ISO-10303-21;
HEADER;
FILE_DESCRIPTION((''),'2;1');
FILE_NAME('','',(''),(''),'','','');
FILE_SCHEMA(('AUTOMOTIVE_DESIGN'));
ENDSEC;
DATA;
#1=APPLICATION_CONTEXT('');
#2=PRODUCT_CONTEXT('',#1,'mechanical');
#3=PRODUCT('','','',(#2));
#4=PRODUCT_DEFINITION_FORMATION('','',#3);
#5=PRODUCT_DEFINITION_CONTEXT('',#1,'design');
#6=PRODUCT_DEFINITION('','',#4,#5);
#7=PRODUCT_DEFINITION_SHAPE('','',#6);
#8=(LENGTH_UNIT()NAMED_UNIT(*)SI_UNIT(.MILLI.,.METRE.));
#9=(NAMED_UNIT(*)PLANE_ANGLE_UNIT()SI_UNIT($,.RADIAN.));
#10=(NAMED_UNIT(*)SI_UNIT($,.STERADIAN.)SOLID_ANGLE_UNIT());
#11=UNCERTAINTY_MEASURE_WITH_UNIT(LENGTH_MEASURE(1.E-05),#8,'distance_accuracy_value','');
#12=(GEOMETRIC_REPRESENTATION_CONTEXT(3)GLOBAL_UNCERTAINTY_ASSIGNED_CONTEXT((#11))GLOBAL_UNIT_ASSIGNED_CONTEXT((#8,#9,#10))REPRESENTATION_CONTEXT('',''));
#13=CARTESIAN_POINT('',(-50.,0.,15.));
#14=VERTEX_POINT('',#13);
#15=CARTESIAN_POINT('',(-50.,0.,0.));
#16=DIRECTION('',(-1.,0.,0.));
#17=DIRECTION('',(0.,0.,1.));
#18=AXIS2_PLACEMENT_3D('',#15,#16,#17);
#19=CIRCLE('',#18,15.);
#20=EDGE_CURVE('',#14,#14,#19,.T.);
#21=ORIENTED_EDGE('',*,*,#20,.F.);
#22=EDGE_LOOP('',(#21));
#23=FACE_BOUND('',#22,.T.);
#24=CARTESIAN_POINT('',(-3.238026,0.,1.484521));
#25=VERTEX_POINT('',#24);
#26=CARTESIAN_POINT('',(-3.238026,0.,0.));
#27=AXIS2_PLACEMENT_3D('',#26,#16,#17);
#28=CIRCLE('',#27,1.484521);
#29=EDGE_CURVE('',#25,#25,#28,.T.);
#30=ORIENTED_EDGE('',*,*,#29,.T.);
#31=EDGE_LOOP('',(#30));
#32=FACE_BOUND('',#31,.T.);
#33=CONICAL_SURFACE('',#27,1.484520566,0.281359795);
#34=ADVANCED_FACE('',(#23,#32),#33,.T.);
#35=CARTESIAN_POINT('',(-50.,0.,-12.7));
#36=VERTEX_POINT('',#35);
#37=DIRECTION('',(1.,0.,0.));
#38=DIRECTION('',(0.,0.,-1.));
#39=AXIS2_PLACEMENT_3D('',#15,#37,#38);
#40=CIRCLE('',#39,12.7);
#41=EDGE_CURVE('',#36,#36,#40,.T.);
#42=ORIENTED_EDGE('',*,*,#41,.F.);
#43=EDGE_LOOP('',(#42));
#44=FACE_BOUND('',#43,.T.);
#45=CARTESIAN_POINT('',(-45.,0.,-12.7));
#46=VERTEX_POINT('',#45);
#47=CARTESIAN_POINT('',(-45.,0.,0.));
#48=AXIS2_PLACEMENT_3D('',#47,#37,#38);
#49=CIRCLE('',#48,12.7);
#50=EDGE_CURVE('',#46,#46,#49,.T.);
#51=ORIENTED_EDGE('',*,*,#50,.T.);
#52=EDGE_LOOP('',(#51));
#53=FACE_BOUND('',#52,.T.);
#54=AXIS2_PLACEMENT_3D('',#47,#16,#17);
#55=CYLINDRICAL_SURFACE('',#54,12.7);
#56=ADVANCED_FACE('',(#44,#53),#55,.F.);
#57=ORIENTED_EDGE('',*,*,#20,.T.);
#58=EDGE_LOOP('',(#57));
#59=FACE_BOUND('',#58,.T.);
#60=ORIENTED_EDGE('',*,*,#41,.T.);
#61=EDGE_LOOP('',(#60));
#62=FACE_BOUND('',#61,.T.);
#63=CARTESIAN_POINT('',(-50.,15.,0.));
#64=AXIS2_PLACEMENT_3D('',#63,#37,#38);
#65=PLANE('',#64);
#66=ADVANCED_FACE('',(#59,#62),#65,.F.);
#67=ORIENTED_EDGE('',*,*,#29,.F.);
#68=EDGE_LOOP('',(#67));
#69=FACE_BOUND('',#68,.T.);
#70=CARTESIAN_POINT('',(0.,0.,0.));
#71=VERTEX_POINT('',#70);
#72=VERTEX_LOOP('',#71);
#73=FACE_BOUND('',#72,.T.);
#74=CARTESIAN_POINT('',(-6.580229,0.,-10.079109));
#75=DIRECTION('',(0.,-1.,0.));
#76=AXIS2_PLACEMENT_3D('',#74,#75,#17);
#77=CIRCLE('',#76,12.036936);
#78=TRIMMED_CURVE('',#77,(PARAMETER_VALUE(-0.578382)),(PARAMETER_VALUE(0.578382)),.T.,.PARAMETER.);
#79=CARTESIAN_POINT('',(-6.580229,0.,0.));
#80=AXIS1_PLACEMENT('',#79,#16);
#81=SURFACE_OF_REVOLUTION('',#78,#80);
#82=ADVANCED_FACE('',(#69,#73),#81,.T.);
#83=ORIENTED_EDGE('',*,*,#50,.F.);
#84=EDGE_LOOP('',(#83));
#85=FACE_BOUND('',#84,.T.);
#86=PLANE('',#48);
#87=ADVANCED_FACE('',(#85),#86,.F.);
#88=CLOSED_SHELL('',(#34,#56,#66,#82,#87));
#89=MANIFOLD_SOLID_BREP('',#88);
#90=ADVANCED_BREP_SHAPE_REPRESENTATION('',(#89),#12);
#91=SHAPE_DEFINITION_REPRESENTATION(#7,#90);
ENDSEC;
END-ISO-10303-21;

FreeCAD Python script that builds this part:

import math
import FreeCAD as App
import Part
import Sketcher
from FreeCAD import Vector

doc = App.newDocument("Part")
body = doc.addObject("PartDesign::Body", "Body")

# Sketch on XY plane
sketch1 = body.newObject("Sketcher::SketchObject", "Sketch")
sketch1.AttachmentSupport = (doc.getObject("XY_Plane"), [""])
sketch1.MapMode = "FlatFace"
sketch1.addGeometry([
    Part.LineSegment(Vector(-3.238026, 1.484521, 0), Vector(-50, 15, 0)),
    Part.LineSegment(Vector(-50, 15, 0), Vector(-50, 0, 0)),
    Part.LineSegment(Vector(-50, 0, 0), Vector(0, 0, 0)),
    Part.ArcOfCircle(Part.Circle(Vector(-6.580229, -10.079109, 0), Vector(0, 0, 1), 12.036936), math.radians(56.86116), math.radians(73.879271)),
], False)
sketch1.addConstraint([
    Sketcher.Constraint("Coincident", 0, 2, 1, 1),
    Sketcher.Constraint("Coincident", 1, 2, 2, 1),
    Sketcher.Constraint("Coincident", 2, 2, 3, 1),
    Sketcher.Constraint("Tangent", 3, 2, 0, 1),
    Sketcher.Constraint("Vertical", 1),
    Sketcher.Constraint("Horizontal", 2),
    Sketcher.Constraint("Coincident", 2, 2, -1, 1),
    Sketcher.Constraint("DistanceX", 2, 1, 2, 2, 50.0),
    Sketcher.Constraint("DistanceY", 1, 2, 1, 1, 15.0),
    Sketcher.Constraint("Radius", 3, 12.036936),
    Sketcher.Constraint("DistanceX", 3, 3, -1, 1, 6.580229),
])
revolution = body.newObject("PartDesign::Revolution", "Revolution")
revolution.Profile = sketch1
revolution.ReferenceAxis = (sketch1, ["H_Axis"])
revolution.Angle = 360

# Sketch on YZ plane
sketch2 = body.newObject("Sketcher::SketchObject", "Sketch001")
sketch2.AttachmentSupport = (doc.getObject("YZ_Plane"), [""])
sketch2.MapMode = "FlatFace"
sketch2.AttachmentOffset = App.Placement(Vector(0, 0, -50), App.Rotation())
sketch2.addGeometry(Part.Circle(Vector(0, 0, 0), Vector(0, 0, 1), 12.7), False)
sketch2.addConstraint([
    Sketcher.Constraint("Coincident", 0, 3, -1, 1),
    Sketcher.Constraint("Diameter", 0, 25.4),
])
pocket1 = body.newObject("PartDesign::Pocket", "Pocket")
pocket1.Profile = sketch2
pocket1.Length = 5
pocket1.Reversed = True

doc.recompute()
